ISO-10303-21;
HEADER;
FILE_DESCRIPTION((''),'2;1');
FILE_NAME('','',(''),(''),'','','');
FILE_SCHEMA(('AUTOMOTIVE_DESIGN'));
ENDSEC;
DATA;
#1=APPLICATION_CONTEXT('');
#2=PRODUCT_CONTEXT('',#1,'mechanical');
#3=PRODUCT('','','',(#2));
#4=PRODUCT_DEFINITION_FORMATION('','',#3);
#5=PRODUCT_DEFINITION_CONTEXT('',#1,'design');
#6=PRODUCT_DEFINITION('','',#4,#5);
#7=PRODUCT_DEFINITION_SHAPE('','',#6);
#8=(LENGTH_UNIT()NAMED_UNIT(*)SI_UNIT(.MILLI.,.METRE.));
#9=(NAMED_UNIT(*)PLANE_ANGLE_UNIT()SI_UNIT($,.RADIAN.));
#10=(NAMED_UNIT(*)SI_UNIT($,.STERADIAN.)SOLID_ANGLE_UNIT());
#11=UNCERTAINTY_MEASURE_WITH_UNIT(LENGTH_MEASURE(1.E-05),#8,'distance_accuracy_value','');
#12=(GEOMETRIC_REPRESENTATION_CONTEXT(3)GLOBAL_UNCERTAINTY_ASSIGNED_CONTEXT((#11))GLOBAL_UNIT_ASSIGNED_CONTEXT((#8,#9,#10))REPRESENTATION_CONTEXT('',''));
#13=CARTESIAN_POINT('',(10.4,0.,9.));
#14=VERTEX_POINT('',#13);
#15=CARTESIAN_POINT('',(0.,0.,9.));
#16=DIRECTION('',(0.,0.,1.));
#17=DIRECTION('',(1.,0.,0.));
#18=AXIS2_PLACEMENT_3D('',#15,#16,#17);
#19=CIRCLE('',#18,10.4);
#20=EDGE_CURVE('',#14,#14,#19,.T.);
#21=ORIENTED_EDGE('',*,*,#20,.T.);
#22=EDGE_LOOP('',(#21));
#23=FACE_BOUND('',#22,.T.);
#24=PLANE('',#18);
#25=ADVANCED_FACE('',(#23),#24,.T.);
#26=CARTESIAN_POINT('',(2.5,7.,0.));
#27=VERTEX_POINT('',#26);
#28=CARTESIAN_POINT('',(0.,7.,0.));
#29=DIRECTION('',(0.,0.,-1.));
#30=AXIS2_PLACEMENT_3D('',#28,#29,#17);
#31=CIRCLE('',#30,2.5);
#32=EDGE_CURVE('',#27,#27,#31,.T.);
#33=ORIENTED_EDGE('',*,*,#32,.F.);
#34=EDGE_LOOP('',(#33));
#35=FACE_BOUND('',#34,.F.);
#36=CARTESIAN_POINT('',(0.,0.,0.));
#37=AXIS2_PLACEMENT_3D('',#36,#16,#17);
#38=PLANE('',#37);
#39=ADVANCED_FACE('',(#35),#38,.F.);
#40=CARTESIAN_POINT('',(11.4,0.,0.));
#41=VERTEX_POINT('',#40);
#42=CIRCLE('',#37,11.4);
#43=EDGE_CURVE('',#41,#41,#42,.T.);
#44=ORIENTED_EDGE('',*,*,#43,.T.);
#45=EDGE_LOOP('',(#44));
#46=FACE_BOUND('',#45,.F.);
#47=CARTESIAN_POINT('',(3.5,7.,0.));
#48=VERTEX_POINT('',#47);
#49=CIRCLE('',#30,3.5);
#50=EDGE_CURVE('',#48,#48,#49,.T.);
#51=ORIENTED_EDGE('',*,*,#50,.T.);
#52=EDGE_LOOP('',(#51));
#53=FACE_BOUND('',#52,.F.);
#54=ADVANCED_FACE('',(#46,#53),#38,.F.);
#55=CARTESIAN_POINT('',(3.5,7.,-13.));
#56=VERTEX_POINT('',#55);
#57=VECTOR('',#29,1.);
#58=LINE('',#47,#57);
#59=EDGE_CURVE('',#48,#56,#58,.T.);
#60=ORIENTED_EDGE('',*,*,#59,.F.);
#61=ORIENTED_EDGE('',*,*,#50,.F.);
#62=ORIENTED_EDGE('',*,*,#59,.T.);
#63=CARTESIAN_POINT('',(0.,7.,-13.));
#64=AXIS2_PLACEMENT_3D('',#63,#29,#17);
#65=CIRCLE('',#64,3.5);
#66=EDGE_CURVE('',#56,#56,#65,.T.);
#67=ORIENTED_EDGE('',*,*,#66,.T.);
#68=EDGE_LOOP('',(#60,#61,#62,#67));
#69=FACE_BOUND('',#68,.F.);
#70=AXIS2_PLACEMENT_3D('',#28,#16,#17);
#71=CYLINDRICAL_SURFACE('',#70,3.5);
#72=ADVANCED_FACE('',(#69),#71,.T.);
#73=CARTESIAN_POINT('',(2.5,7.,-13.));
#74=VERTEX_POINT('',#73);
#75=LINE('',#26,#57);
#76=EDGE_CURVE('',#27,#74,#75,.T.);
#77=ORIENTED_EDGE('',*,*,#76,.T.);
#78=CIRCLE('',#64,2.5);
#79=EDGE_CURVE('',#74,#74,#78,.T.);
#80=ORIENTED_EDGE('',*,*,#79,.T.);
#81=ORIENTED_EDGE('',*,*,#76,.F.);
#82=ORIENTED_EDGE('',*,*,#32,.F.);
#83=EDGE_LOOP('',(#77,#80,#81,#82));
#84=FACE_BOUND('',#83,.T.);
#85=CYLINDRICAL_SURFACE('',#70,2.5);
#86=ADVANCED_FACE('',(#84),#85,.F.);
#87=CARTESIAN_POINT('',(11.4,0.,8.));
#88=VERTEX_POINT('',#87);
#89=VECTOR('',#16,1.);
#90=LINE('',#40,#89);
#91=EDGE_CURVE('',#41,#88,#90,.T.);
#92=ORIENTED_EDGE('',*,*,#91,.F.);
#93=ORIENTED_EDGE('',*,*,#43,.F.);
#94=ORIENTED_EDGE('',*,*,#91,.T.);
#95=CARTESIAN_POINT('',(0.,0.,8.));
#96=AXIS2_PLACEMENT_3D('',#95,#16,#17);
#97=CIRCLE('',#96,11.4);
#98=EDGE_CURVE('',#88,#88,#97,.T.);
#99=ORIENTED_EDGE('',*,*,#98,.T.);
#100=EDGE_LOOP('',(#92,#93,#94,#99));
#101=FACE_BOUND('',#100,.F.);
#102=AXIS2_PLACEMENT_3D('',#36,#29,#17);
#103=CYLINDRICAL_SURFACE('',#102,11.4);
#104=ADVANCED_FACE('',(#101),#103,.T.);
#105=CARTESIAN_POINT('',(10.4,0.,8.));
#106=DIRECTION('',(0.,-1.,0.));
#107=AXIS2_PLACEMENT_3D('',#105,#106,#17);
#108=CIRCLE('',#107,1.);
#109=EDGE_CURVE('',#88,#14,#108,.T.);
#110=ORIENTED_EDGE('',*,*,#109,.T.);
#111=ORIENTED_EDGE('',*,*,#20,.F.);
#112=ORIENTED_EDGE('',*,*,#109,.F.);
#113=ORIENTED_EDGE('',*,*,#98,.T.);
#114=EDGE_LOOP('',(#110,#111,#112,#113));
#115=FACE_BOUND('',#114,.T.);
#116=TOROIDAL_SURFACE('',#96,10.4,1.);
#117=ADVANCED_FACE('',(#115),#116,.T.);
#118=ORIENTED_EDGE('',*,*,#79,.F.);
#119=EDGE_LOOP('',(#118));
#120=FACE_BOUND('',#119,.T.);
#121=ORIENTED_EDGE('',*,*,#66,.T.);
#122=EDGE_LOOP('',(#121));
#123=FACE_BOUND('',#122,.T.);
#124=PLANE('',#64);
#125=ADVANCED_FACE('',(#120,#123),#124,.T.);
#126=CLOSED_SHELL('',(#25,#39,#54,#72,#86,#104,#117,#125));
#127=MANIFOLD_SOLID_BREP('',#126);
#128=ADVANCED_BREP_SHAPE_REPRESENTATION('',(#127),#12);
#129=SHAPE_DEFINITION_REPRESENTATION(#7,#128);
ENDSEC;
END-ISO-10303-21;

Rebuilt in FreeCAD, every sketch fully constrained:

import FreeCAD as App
import Part
import Sketcher

V = App.Vector
Q = App.Units.Quantity


def edges_at(feature, points):
    """Names of the edges that pass closest to the given points."""
    edges = feature.Shape.Edges
    near = lambda p: min(range(len(edges)), key=lambda i: edges[i].distToShape(Part.Vertex(*p))[0])
    return sorted({f"Edge{near(p) + 1}" for p in points})

doc = App.newDocument("Part")
params = doc.addObject("Spreadsheet::Sheet", "Params")
for row, (alias, value) in enumerate([
    ("sketch1_diameter", "22.8 mm"),
    ("pad1_length", "9 mm"),
    ("sketch2_diameter", "7 mm"),
    ("sketch2_diameter2", "5 mm"),
    ("pad2_length", "13 mm"),
    ("fillet_radius", "1 mm"),
], start=1):
    params.set(f"A{row}", alias)
    params.set(f"B{row}", "=" + value)
    params.setAlias(f"B{row}", alias)

body = doc.addObject("PartDesign::Body", "Body")

sketch1 = body.newObject("Sketcher::SketchObject", "Sketch")
sketch1.AttachmentSupport = (doc.getObject("XY_Plane"), [""])
sketch1.MapMode = "FlatFace"
sketch1.addGeometry(Part.Circle(V(0, 0, 0), V(0, 0, 1), 11), False)
sketch1.addConstraint([
    Sketcher.Constraint("Coincident", 0, 3, -1, 1),
    Sketcher.Constraint("Diameter", 0, Q("22.8 mm")),
])
sketch1.setExpression("Constraints[1]", "Params.sketch1_diameter")
pad1 = body.newObject("PartDesign::Pad", "Pad")
pad1.Profile = sketch1
pad1.setExpression("Length", "Params.pad1_length")

sketch2 = body.newObject("Sketcher::SketchObject", "Sketch001")
sketch2.AttachmentSupport = (doc.getObject("XY_Plane"), [""])
sketch2.MapMode = "FlatFace"
sketch2.addGeometry([
    Part.Circle(V(0, 7, 0), V(0, 0, 1), 3.5),
    Part.Circle(V(0, 7, 0), V(0, 0, 1), 2.5),
], False)
sketch2.addConstraint([
    Sketcher.Constraint("Coincident", 1, 3, 0, 3),
    Sketcher.Constraint("PointOnObject", 0, 3, -2),
    Sketcher.Constraint("Diameter", 0, Q("7 mm")),
    Sketcher.Constraint("Diameter", 1, Q("5 mm")),
    Sketcher.Constraint("DistanceY", -1, 1, 0, 3, Q("7 mm")),
])
sketch2.setExpression("Constraints[2]", "Params.sketch2_diameter")
sketch2.setExpression("Constraints[3]", "Params.sketch2_diameter2")
pad2 = body.newObject("PartDesign::Pad", "Pad001")
pad2.Profile = sketch2
pad2.setExpression("Length", "Params.pad2_length")
pad2.Reversed = True
doc.recompute()

fillet = body.newObject("PartDesign::Fillet", "Fillet")
fillet.Base = (pad2, edges_at(pad2, [(-11.4, 0, 9)]))
fillet.setExpression("Radius", "Params.fillet_radius")

doc.recompute()
